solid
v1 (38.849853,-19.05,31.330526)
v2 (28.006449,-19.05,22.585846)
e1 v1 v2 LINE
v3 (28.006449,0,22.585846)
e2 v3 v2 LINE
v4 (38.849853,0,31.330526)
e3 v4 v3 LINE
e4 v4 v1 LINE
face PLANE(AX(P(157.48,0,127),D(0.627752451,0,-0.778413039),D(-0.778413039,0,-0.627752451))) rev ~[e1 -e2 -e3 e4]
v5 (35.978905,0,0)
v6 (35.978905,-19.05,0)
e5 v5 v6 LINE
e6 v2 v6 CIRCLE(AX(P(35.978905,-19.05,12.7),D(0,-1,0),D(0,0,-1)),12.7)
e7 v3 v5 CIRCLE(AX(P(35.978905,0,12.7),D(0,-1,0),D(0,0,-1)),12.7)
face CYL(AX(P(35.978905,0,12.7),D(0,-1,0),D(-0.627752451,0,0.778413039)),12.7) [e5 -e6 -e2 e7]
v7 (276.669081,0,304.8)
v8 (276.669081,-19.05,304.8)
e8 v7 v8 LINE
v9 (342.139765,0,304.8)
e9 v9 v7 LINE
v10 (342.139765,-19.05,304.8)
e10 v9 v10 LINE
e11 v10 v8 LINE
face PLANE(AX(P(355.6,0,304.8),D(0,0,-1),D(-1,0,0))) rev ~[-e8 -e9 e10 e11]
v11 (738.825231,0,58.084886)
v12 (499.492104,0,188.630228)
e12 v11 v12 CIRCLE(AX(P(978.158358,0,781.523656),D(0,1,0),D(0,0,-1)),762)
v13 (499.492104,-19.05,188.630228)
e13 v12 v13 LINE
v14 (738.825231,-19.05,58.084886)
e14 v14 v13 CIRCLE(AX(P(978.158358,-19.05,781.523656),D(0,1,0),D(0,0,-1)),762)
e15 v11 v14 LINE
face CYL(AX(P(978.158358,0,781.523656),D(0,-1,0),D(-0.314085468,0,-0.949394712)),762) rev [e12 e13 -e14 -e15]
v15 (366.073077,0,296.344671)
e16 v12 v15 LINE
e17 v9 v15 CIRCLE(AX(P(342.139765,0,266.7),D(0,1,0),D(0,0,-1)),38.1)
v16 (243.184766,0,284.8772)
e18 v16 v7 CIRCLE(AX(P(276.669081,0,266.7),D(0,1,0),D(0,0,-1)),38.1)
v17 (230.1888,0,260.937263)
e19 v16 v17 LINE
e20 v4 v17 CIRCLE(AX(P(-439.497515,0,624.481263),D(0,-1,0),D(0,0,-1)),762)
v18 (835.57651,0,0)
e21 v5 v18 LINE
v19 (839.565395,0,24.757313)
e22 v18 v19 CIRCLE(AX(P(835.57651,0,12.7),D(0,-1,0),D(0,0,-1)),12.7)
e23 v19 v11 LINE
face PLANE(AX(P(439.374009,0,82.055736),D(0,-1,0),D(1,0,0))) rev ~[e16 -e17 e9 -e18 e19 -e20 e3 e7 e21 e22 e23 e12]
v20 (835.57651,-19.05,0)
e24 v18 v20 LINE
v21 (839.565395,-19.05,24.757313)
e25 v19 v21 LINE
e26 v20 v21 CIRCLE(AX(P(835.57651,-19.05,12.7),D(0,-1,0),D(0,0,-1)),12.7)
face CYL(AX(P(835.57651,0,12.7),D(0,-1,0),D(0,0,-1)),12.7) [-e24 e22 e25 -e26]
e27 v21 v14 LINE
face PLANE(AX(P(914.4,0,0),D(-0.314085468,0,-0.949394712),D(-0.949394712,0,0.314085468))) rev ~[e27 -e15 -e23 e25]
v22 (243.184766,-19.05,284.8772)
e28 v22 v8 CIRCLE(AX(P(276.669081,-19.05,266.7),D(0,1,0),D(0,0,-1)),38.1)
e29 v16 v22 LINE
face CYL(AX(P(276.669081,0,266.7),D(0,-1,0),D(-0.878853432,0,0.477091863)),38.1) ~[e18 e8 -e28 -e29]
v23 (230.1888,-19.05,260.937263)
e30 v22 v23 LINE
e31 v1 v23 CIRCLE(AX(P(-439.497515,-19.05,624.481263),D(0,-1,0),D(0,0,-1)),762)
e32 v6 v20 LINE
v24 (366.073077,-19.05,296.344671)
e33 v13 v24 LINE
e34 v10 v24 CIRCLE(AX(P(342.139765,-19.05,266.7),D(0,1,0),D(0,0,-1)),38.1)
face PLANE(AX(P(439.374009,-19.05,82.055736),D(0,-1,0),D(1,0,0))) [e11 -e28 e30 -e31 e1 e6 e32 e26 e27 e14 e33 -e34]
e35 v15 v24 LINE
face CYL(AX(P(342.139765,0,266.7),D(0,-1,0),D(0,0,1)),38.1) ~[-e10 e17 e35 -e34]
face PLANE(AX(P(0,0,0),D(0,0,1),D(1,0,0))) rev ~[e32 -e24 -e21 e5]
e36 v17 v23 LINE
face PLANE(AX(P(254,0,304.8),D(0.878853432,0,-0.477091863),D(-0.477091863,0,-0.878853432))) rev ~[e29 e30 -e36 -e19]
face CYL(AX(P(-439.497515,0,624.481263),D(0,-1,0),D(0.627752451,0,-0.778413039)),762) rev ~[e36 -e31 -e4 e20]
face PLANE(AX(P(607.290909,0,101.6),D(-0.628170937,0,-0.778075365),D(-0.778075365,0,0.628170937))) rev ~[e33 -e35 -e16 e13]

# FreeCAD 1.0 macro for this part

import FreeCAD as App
import Part
import Sketcher
from FreeCAD import Vector
Q = App.Units.Quantity


def edges_at(feature, points):
    """Names of the edges that pass closest to the given points."""
    edges = feature.Shape.Edges
    near = lambda p: min(range(len(edges)), key=lambda i: edges[i].distToShape(Part.Vertex(*p))[0])
    return sorted({f"Edge{near(p) + 1}" for p in points})

doc = App.newDocument("Part")
body = doc.addObject("PartDesign::Body", "Body")

sketch1 = doc.addObject("Sketcher::SketchObject", "Sketch")
body.addObject(sketch1)
sketch1.AttachmentSupport = (doc.XZ_Plane, [""])
sketch1.MapMode = "FlatFace"
sketch1.addGeometry(Part.LineSegment(Vector(157.48, 127, 0), Vector(0, 0, 0)), False)
sketch1.addGeometry(Part.LineSegment(Vector(0, 0, 0), Vector(914.4, 0, 0)), False)
sketch1.addGeometry(Part.LineSegment(Vector(914.4, 0, 0), Vector(607.290909, 101.6, 0)), False)
sketch1.addGeometry(Part.LineSegment(Vector(607.290909, 101.6, 0), Vector(355.6, 304.8, 0)), False)
sketch1.addGeometry(Part.LineSegment(Vector(355.6, 304.8, 0), Vector(254, 304.8, 0)), False)
sketch1.addGeometry(Part.LineSegment(Vector(254, 304.8, 0), Vector(157.48, 127, 0)), False)
sketch1.addConstraint(Sketcher.Constraint("Coincident", 0, 2, 1, 1))
sketch1.addConstraint(Sketcher.Constraint("Coincident", 1, 2, 2, 1))
sketch1.addConstraint(Sketcher.Constraint("Coincident", 2, 2, 3, 1))
sketch1.addConstraint(Sketcher.Constraint("Coincident", 3, 2, 4, 1))
sketch1.addConstraint(Sketcher.Constraint("Coincident", 4, 2, 5, 1))
sketch1.addConstraint(Sketcher.Constraint("Coincident", 5, 2, 0, 1))
sketch1.addConstraint(Sketcher.Constraint("Horizontal", 1))
sketch1.addConstraint(Sketcher.Constraint("Horizontal", 4))
sketch1.addConstraint(Sketcher.Constraint("Coincident", 0, 2, -1, 1))
sketch1.addConstraint(Sketcher.Constraint("Equal", 2, 3))
sketch1.addConstraint(Sketcher.Constraint("Equal", 0, 5))
sketch1.addConstraint(Sketcher.Constraint("DistanceX", 1, 1, 1, 2, Q("36 in")))
sketch1.addConstraint(Sketcher.Constraint("DistanceX", 4, 2, 4, 1, Q("4 in")))
sketch1.addConstraint(Sketcher.Constraint("DistanceY", -1, 1, 2, 2, Q("4 in")))
sketch1.addConstraint(Sketcher.Constraint("DistanceX", -1, 1, 3, 2, Q("14 in")))
sketch1.addConstraint(Sketcher.Constraint("DistanceY", -1, 1, 3, 2, Q("12 in")))
sketch1.addConstraint(Sketcher.Constraint("DistanceY", -1, 1, 5, 2, Q("5 in")))
pad1 = doc.addObject("PartDesign::Pad", "Pad")
body.addObject(pad1)
pad1.Profile = sketch1
pad1.Length = Q("0.75 in")
doc.recompute()

fillet = doc.addObject("PartDesign::Fillet", "Fillet")
body.addObject(fillet)
fillet.Base = (pad1, edges_at(pad1, [(157.48, -9.525, 127), (607.291, -9.525, 101.6)]))
fillet.Radius = Q("30 in")
doc.recompute()

fillet2 = doc.addObject("PartDesign::Fillet", "Fillet001")
body.addObject(fillet2)
fillet2.Base = (fillet, edges_at(fillet, [(254, -9.525, 304.8), (355.6, -9.525, 304.8)]))
fillet2.Radius = Q("1.5 in")
doc.recompute()

fillet3 = doc.addObject("PartDesign::Fillet", "Fillet002")
body.addObject(fillet3)
fillet3.Base = (fillet2, edges_at(fillet2, [(914.4, -9.525, 0), (0, -9.525, 0)]))
fillet3.Radius = Q("0.5 in")

doc.recompute()
